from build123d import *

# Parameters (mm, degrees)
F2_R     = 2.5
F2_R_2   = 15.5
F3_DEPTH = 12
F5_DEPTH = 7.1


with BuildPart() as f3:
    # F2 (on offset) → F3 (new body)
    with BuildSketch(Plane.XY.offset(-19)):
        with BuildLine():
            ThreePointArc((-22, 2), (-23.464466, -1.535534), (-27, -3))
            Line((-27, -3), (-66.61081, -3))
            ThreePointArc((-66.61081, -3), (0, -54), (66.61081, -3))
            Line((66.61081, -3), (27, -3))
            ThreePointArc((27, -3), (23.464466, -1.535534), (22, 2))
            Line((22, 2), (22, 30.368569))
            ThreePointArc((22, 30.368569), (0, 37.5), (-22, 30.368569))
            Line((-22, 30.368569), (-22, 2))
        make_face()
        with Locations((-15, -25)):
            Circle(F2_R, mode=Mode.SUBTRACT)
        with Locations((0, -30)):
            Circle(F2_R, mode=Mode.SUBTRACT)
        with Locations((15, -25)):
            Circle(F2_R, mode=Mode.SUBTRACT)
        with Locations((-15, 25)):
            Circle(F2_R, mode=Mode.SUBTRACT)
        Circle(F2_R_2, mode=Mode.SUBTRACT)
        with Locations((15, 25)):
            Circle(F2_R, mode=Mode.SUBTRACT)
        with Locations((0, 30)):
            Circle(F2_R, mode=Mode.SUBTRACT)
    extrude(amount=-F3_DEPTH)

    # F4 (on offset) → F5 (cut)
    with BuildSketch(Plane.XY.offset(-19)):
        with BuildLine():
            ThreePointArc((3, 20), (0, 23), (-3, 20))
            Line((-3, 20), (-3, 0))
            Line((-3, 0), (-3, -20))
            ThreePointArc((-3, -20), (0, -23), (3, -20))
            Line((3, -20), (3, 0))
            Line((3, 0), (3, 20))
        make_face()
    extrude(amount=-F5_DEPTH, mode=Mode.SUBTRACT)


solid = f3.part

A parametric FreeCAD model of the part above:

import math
import FreeCAD as App
import Part
import Sketcher

V = App.Vector

doc = App.newDocument("Part")
body = doc.addObject("PartDesign::Body", "Body")

sketch1 = body.newObject("Sketcher::SketchObject", "Sketch")
sketch1.AttachmentSupport = (doc.getObject("XY_Plane"), [""])
sketch1.MapMode = "FlatFace"
sketch1.AttachmentOffset = App.Placement(V(0, 0, -19), App.Rotation())
sketch1.addGeometry([
    Part.ArcOfCircle(Part.Circle(V(-27, 2, 0), V(0, 0, 1), 5), math.radians(-90), math.radians(0)),
    Part.LineSegment(V(-27, -3, 0), V(-66.6, -3, 0)),
    Part.ArcOfCircle(Part.Circle(V(0, 15, 0), V(0, 0, 1), 69), math.radians(-165), math.radians(-15)),
    Part.LineSegment(V(66.6, -3, 0), V(27, -3, 0)),
    Part.ArcOfCircle(Part.Circle(V(27, 2, 0), V(0, 0, 1), 5), math.radians(180), math.radians(270)),
    Part.LineSegment(V(22, 2, 0), V(22, 30.4, 0)),
    Part.ArcOfCircle(Part.Circle(V(0, 0, 0), V(0, 0, 1), 37.5), math.radians(54), math.radians(126)),
    Part.LineSegment(V(-22, 30.4, 0), V(-22, 2, 0)),
    Part.Circle(V(-15, -25, 0), V(0, 0, 1), 2.5),
    Part.Circle(V(0, -30, 0), V(0, 0, 1), 2.5),
    Part.Circle(V(15, -25, 0), V(0, 0, 1), 2.5),
    Part.Circle(V(-15, 25, 0), V(0, 0, 1), 2.5),
    Part.Circle(V(0, 0, 0), V(0, 0, 1), 15.5),
    Part.Circle(V(0, 30, 0), V(0, 0, 1), 2.5),
    Part.Circle(V(15, 25, 0), V(0, 0, 1), 2.5),
], False)
sketch1.addConstraint([
    Sketcher.Constraint("Tangent", 0, 1, 1, 1),
    Sketcher.Constraint("Coincident", 1, 2, 2, 1),
    Sketcher.Constraint("Coincident", 2, 2, 3, 1),
    Sketcher.Constraint("Tangent", 3, 2, 4, 2),
    Sketcher.Constraint("Tangent", 4, 1, 5, 1),
    Sketcher.Constraint("Coincident", 5, 2, 6, 1),
    Sketcher.Constraint("Coincident", 6, 2, 7, 1),
    Sketcher.Constraint("Tangent", 7, 2, 0, 2),
    Sketcher.Constraint("Horizontal", 1),
    Sketcher.Constraint("Horizontal", 3),
    Sketcher.Constraint("Vertical", 5),
    Sketcher.Constraint("Vertical", 7),
    Sketcher.Constraint("Coincident", 6, 3, -1, 1),
    Sketcher.Constraint("Coincident", 12, 3, -1, 1),
    Sketcher.Constraint("Equal", 0, 4),
    Sketcher.Constraint("Equal", 8, 9),
    Sketcher.Constraint("Equal", 9, 10),
    Sketcher.Constraint("Equal", 10, 11),
    Sketcher.Constraint("Equal", 11, 13),
    Sketcher.Constraint("Equal", 13, 14),
    Sketcher.Constraint("Symmetric", 10, 3, 11, 3, -1, 1),
    Sketcher.Constraint("Symmetric", 9, 3, 13, 3, -1, 1),
    Sketcher.Constraint("Symmetric", 8, 3, 14, 3, -1, 1),
    Sketcher.Constraint("Symmetric", 0, 3, 4, 3, -2),
    Sketcher.Constraint("Symmetric", 8, 3, 10, 3, -2),
    Sketcher.Constraint("PointOnObject", 2, 3, -2),
    Sketcher.Constraint("PointOnObject", 9, 3, -2),
    Sketcher.Constraint("Diameter", 8, 5.0),
    Sketcher.Constraint("Diameter", 12, 31.0),
    Sketcher.Constraint("Radius", 0, 5.0),
    Sketcher.Constraint("Radius", 2, 69.0),
    Sketcher.Constraint("Radius", 6, 37.499999),
    Sketcher.Constraint("DistanceX", 0, 3, -1, 1, 27.0),
    Sketcher.Constraint("DistanceY", -1, 1, 0, 3, 2.0),
    Sketcher.Constraint("DistanceY", -1, 1, 2, 3, 15.0),
    Sketcher.Constraint("DistanceX", 8, 3, -1, 1, 15.0),
    Sketcher.Constraint("DistanceY", 8, 3, -1, 1, 25.0),
    Sketcher.Constraint("DistanceY", 9, 3, -1, 1, 30.0),
])
pad1 = body.newObject("PartDesign::Pad", "Pad")
pad1.Profile = sketch1
pad1.Length = 12
pad1.Reversed = True

sketch2 = body.newObject("Sketcher::SketchObject", "Sketch001")
sketch2.AttachmentSupport = (doc.getObject("XY_Plane"), [""])
sketch2.MapMode = "FlatFace"
sketch2.AttachmentOffset = App.Placement(V(0, 0, -19), App.Rotation())
sketch2.addGeometry([
    Part.ArcOfCircle(Part.Circle(V(0, 20, 0), V(0, 0, 1), 3), math.radians(0), math.radians(180)),
    Part.LineSegment(V(-3, 20, 0), V(-3, -20, 0)),
    Part.ArcOfCircle(Part.Circle(V(0, -20, 0), V(0, 0, 1), 3), math.radians(180), math.radians(360)),
    Part.LineSegment(V(3, -20, 0), V(3, 20, 0)),
], False)
sketch2.addConstraint([
    Sketcher.Constraint("Tangent", 0, 2, 1, 1),
    Sketcher.Constraint("Tangent", 1, 2, 2, 1),
    Sketcher.Constraint("Tangent", 2, 2, 3, 1),
    Sketcher.Constraint("Tangent", 3, 2, 0, 1),
    Sketcher.Constraint("Vertical", 1),
    Sketcher.Constraint("Vertical", 3),
    Sketcher.Constraint("Symmetric", 0, 3, 2, 3, -1, 1),
    Sketcher.Constraint("Radius", 0, 3.0),
    Sketcher.Constraint("DistanceY", 1, 2, 1, 1, 40.0),
])
pocket1 = body.newObject("PartDesign::Pocket", "Pocket")
pocket1.Profile = sketch2
pocket1.Length = 7.1

doc.recompute()
